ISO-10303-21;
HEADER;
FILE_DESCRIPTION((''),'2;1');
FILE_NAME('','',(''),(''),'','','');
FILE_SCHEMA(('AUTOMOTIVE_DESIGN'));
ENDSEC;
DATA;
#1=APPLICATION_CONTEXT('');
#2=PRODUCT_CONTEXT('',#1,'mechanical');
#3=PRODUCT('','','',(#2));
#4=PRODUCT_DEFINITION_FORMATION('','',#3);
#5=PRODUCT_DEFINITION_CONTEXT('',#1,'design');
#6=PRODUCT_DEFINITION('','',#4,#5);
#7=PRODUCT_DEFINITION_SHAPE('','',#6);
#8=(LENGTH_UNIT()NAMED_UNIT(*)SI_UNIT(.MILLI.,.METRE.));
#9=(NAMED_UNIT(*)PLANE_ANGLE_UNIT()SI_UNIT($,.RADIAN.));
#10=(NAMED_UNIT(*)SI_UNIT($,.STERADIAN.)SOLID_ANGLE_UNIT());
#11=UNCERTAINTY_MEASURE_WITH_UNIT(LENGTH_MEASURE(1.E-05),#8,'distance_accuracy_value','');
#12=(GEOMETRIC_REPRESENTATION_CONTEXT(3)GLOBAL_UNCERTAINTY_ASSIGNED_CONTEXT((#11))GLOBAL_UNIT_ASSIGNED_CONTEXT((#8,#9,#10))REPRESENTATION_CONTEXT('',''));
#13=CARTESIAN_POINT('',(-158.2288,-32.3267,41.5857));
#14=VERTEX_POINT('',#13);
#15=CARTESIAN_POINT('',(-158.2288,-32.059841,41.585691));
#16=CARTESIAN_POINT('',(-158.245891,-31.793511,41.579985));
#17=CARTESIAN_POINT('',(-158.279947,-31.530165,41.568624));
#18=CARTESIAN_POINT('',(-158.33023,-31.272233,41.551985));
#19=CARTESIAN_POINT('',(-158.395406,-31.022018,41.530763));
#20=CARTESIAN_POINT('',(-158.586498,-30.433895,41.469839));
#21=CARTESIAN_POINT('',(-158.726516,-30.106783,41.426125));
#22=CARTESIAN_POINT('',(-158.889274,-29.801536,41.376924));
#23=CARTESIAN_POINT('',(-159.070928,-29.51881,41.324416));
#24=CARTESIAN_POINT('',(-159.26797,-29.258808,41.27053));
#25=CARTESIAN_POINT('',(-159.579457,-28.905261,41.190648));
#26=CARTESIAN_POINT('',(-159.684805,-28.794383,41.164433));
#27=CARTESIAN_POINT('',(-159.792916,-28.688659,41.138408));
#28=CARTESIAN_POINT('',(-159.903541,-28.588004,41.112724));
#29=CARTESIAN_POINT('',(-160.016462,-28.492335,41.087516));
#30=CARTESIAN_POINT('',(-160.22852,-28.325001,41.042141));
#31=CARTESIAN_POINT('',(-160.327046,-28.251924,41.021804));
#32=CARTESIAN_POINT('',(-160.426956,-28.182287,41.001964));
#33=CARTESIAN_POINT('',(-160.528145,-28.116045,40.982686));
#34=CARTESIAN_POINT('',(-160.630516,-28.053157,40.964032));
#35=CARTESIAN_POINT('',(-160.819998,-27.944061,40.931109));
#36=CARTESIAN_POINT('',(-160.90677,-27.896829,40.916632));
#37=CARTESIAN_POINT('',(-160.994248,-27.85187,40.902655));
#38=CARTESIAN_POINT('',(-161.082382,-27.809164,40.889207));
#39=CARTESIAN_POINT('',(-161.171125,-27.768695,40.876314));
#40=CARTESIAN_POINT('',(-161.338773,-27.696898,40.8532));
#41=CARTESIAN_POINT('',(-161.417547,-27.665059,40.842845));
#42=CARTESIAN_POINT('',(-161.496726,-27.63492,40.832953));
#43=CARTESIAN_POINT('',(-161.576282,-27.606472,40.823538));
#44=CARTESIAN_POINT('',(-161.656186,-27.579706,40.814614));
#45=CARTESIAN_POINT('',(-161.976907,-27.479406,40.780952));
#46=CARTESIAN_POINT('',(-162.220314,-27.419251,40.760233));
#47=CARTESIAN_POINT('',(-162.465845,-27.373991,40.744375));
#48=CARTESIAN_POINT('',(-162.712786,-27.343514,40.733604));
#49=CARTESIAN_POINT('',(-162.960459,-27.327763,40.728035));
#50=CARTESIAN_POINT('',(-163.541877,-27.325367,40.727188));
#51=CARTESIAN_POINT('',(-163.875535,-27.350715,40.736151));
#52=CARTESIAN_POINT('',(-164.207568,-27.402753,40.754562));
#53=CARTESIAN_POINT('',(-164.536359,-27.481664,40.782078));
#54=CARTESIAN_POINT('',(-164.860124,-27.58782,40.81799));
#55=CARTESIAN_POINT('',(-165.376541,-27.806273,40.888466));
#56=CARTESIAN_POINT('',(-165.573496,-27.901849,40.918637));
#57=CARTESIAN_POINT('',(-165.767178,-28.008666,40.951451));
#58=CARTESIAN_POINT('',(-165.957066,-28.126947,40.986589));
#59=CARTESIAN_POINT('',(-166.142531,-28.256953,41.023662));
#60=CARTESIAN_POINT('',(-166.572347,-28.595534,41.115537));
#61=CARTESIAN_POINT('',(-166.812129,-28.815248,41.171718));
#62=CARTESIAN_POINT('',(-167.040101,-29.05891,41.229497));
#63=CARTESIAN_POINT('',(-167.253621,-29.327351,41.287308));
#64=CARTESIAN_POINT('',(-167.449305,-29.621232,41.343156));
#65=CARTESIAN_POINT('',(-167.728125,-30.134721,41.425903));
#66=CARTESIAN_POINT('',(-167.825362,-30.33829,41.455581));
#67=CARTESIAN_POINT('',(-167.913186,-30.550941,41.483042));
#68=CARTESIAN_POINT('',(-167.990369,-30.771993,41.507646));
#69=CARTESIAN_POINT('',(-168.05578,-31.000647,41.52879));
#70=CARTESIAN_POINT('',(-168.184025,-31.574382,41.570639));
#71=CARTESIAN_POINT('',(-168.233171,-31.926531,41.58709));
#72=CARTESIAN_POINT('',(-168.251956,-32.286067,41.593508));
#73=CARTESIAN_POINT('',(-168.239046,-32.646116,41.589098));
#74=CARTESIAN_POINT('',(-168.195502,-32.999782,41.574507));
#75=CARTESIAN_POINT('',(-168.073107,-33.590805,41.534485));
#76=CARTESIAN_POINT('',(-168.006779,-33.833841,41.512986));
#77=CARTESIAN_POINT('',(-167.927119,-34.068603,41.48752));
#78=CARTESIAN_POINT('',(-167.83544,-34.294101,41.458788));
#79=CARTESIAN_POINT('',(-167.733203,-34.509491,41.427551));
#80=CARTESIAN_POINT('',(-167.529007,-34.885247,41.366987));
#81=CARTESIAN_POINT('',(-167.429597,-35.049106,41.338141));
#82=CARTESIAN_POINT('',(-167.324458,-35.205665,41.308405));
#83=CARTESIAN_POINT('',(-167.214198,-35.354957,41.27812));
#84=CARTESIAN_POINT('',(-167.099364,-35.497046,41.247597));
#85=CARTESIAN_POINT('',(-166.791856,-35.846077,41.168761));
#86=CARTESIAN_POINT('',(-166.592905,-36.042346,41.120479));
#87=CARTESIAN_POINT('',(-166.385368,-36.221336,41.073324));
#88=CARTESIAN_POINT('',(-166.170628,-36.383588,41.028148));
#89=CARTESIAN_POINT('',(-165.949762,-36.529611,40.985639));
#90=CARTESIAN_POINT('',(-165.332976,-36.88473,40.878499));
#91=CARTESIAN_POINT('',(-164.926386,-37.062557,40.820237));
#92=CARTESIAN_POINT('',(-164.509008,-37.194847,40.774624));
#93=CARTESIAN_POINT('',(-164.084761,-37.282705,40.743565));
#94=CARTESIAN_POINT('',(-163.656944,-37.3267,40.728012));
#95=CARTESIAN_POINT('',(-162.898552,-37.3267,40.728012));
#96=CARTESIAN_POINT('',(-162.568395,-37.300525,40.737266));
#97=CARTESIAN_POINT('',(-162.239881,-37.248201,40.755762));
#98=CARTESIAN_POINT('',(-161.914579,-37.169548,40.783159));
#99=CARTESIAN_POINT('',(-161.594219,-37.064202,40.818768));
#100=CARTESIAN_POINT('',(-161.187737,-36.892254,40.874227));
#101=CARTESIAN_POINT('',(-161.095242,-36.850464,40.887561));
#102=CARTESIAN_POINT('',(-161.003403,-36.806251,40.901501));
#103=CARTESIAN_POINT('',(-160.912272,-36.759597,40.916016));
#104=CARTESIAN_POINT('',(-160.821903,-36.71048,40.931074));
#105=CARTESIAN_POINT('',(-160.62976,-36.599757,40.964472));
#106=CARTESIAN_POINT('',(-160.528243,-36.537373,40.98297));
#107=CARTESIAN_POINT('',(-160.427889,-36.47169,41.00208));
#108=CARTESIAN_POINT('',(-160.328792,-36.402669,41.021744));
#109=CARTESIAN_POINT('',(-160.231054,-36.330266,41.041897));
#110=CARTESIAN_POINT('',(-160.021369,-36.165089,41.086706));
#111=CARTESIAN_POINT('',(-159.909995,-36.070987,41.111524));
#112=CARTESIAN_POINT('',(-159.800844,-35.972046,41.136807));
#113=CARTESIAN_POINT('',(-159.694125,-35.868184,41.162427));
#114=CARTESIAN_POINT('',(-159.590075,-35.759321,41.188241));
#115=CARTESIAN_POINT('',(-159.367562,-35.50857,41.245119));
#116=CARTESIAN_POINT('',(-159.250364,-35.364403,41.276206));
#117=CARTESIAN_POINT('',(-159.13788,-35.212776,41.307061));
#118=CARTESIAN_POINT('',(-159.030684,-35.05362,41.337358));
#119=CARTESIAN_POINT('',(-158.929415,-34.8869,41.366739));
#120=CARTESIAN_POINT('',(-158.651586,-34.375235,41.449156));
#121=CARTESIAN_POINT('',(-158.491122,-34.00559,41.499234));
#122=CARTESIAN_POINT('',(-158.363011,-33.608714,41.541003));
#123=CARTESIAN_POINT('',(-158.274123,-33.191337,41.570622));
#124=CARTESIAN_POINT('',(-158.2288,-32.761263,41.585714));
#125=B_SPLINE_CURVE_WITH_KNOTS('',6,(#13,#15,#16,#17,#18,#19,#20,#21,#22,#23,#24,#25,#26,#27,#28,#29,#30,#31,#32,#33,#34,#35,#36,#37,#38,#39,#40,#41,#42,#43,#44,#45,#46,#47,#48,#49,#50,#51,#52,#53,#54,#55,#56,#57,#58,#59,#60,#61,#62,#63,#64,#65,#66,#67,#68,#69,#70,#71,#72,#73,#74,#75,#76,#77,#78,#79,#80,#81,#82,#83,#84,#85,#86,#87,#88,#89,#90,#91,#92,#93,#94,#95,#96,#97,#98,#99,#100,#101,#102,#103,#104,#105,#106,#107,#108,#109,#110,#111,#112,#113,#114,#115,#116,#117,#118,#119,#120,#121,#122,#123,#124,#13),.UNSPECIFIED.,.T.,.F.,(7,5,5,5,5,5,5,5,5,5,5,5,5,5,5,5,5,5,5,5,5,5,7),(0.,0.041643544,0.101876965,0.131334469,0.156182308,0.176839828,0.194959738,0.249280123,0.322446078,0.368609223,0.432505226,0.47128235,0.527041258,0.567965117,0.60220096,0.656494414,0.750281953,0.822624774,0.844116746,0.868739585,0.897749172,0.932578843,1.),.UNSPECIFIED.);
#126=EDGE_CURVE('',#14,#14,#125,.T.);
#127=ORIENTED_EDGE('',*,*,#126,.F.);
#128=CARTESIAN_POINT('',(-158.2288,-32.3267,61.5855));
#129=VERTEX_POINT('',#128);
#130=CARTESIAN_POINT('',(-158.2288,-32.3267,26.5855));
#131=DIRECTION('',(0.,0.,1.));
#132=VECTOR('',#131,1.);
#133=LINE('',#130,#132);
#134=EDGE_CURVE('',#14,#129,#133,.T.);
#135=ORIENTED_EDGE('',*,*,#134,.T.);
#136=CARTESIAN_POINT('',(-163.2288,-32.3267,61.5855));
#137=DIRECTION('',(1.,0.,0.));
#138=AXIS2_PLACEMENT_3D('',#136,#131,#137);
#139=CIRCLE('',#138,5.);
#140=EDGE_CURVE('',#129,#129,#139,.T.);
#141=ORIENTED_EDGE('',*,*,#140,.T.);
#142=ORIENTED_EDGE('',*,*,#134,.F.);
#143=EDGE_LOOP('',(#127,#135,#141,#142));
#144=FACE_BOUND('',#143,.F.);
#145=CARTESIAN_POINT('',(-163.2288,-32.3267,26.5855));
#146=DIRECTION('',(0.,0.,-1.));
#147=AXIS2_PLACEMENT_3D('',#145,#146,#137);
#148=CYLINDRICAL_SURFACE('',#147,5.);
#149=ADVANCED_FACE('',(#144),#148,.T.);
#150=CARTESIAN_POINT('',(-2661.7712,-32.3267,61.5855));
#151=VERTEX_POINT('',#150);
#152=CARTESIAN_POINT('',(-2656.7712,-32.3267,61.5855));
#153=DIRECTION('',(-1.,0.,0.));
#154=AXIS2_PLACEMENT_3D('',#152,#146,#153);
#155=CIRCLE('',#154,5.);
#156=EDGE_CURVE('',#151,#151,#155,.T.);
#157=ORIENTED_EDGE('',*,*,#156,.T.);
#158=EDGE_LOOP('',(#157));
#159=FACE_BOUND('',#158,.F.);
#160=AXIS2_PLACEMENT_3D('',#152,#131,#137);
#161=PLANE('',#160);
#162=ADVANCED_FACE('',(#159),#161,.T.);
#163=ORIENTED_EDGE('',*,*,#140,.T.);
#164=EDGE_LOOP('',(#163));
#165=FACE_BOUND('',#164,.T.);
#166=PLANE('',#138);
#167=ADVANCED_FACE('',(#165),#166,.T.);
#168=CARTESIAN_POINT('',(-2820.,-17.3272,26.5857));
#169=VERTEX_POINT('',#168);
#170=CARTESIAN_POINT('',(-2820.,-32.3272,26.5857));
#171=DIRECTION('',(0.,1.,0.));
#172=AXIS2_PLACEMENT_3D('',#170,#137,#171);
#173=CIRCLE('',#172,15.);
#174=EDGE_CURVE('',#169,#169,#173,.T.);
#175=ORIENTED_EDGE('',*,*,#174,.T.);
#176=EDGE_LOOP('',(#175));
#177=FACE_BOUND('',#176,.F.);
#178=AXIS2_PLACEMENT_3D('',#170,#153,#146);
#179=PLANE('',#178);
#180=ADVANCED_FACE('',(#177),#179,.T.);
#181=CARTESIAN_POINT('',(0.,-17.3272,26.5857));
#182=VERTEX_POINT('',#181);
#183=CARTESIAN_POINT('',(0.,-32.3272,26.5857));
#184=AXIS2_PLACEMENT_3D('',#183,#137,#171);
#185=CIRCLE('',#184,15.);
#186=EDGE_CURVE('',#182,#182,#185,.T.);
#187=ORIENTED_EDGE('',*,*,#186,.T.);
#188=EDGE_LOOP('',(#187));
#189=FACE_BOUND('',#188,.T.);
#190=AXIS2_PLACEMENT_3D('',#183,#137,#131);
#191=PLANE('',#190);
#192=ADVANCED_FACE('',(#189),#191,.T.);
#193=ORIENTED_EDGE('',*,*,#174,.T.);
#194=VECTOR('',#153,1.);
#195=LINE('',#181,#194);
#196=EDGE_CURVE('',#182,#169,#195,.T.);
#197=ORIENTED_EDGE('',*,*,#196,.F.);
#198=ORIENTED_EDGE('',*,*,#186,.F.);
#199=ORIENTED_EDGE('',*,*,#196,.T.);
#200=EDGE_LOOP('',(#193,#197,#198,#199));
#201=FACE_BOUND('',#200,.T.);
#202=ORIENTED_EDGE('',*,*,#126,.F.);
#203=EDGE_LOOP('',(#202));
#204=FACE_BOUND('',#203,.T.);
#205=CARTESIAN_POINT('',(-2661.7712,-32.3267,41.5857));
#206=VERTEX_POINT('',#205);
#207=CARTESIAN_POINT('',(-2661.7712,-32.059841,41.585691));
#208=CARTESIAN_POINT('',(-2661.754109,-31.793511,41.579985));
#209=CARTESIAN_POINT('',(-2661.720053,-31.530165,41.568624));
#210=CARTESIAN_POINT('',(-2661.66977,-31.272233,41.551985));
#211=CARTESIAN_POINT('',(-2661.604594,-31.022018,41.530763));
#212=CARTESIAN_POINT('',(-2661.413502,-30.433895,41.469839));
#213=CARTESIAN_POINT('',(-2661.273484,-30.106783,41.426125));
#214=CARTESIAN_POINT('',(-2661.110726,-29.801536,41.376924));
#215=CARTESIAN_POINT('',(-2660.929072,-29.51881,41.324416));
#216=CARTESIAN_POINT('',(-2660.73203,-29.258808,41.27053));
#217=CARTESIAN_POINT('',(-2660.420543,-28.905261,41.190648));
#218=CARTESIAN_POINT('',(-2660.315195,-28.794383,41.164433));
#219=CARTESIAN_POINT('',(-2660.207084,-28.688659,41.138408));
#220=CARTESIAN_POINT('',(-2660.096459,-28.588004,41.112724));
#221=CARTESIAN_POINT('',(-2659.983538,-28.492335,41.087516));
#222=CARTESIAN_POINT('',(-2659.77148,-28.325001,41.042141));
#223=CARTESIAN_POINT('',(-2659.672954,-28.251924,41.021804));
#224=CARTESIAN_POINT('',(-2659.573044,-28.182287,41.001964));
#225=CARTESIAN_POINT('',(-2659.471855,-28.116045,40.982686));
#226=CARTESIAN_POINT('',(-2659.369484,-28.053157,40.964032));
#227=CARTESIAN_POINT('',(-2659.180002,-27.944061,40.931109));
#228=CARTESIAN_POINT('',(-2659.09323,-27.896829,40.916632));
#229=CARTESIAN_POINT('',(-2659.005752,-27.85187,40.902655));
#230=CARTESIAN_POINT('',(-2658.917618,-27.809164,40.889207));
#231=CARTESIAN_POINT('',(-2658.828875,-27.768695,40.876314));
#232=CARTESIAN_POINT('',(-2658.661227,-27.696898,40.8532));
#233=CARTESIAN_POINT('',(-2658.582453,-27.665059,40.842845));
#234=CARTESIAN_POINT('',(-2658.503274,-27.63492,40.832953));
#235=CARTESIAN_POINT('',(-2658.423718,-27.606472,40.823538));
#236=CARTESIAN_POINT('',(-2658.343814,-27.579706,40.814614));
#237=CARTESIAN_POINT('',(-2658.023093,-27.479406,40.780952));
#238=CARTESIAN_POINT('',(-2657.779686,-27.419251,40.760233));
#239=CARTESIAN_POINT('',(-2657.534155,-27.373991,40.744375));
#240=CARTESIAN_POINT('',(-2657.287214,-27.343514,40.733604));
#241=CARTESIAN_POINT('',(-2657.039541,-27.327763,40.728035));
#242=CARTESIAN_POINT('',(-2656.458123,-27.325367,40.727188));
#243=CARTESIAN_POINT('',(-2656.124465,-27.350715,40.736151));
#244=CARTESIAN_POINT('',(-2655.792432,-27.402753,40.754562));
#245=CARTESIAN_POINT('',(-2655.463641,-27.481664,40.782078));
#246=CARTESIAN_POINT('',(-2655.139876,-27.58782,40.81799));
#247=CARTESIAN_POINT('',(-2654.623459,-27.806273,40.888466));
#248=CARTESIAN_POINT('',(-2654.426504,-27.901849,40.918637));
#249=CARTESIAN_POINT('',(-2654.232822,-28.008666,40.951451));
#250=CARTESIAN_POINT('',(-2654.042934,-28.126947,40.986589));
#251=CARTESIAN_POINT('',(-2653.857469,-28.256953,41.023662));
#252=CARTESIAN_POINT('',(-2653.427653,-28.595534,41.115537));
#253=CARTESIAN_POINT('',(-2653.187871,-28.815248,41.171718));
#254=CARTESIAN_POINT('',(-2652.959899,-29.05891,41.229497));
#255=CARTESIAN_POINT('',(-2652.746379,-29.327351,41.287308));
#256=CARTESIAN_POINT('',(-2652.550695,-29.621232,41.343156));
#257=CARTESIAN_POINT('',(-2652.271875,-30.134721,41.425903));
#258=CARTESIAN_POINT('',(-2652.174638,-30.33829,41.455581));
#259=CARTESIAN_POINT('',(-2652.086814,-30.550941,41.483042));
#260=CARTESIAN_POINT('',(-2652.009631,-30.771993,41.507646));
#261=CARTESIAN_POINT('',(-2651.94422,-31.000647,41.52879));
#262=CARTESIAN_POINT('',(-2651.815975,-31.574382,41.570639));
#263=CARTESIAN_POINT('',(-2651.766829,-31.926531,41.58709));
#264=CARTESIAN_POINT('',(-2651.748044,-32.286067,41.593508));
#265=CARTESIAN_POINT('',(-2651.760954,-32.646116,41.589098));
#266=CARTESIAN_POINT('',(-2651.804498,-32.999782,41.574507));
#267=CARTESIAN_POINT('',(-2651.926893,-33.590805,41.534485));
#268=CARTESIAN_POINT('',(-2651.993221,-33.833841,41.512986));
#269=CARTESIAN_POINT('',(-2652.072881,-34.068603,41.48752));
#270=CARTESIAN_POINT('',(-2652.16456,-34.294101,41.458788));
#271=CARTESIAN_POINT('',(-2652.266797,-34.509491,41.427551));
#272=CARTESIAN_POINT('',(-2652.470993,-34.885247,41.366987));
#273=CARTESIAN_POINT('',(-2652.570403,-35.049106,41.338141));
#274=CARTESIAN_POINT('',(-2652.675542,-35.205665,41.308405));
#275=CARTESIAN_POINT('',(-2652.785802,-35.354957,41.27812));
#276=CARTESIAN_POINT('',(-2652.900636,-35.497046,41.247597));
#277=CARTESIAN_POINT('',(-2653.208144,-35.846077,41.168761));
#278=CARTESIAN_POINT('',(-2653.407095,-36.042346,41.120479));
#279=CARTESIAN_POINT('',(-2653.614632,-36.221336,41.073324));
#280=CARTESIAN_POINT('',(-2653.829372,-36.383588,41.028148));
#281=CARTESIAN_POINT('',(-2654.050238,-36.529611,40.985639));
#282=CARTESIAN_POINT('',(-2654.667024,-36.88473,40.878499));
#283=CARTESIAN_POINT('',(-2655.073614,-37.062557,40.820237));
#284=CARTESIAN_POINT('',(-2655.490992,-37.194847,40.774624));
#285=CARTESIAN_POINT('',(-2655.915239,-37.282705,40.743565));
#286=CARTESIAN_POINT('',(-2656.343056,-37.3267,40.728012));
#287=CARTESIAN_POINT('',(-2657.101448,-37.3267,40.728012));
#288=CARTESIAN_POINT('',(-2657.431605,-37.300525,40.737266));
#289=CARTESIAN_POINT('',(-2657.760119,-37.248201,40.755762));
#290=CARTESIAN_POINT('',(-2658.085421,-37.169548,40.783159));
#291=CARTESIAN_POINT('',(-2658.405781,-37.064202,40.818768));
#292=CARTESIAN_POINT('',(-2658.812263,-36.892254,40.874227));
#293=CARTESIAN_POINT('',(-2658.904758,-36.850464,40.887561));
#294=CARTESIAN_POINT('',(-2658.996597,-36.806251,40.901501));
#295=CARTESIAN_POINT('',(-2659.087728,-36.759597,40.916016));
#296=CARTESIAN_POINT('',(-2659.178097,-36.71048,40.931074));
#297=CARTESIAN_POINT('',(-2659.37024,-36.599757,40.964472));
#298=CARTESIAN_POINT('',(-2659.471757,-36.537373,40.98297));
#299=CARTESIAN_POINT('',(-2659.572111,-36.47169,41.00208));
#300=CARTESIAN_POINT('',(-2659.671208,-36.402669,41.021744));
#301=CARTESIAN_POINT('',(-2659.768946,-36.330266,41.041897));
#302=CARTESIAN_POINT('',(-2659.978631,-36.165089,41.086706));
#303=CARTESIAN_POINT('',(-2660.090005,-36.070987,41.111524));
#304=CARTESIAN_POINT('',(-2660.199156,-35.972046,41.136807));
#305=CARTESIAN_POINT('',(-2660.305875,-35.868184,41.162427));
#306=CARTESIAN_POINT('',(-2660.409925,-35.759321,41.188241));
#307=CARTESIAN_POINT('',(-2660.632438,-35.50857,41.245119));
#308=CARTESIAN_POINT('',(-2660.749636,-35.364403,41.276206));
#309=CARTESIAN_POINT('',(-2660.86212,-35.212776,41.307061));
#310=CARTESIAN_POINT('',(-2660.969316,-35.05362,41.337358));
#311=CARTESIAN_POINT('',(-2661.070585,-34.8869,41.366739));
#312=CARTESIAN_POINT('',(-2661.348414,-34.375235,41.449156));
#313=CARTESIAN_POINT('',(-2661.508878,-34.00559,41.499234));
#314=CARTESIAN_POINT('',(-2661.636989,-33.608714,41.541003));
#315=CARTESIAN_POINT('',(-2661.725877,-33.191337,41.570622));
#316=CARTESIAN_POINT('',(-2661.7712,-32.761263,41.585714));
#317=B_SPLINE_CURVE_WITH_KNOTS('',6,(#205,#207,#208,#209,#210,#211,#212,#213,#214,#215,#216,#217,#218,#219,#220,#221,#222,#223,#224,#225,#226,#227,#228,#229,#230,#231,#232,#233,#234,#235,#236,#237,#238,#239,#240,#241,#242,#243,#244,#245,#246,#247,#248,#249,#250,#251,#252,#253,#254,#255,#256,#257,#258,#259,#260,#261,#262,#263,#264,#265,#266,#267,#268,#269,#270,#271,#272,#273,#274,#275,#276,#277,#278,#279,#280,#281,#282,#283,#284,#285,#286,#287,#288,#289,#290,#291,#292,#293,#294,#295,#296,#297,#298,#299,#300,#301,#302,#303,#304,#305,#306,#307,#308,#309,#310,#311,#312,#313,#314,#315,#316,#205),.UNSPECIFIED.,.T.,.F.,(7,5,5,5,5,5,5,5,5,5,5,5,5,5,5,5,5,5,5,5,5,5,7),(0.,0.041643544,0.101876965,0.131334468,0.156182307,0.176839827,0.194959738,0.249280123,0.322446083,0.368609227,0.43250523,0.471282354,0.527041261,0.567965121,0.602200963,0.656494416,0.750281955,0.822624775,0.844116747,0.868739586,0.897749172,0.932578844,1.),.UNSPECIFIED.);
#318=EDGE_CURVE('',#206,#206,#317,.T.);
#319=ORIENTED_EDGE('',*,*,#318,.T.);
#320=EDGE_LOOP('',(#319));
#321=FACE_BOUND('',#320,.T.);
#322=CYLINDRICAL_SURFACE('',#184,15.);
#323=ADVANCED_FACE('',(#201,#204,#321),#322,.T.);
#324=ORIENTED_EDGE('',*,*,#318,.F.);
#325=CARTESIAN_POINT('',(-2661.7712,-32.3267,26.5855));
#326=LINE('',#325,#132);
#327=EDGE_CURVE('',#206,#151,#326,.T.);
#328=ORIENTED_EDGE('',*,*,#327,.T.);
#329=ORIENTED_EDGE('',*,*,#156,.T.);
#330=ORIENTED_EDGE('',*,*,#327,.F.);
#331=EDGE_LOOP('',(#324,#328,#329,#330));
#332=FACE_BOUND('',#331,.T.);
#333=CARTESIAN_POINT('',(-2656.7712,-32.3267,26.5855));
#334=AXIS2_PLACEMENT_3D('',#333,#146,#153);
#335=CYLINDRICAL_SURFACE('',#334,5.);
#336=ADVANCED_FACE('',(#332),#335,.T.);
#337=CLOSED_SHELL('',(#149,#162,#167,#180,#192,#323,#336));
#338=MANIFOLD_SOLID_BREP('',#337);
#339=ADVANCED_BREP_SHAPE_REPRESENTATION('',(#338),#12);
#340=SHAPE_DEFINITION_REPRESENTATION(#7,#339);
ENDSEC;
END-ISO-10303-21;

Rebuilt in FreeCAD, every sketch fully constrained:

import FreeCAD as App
import Part
import Sketcher
from FreeCAD import Vector
Q = App.Units.Quantity

doc = App.newDocument("Part")
params = doc.addObject("Spreadsheet::Sheet", "Params")
for row, (alias, value) in enumerate([
    ("sketch1_diameter", "30 mm"),
    ("pad1_length", "1410 mm"),
    ("sketch2_diameter", "10 mm"),
    ("pad2_length", "35 mm"),
], start=1):
    params.set(f"A{row}", alias)
    params.set(f"B{row}", "=" + value)
    params.setAlias(f"B{row}", alias)

body = doc.addObject("PartDesign::Body", "Body")

# Sketch on YZ plane
sketch1 = body.newObject("Sketcher::SketchObject", "Sketch")
sketch1.AttachmentSupport = (doc.getObject("YZ_Plane"), [""])
sketch1.MapMode = "FlatFace"
sketch1.addGeometry(Part.Circle(Vector(-32.3272, 26.5857, 0), Vector(0, 0, 1), 15), False)
sketch1.addConstraint(Sketcher.Constraint("Diameter", 0, Q("30 mm")))
sketch1.addConstraint(Sketcher.Constraint("DistanceX", 0, 3, -1, 1, Q("32.3272 mm")))
sketch1.addConstraint(Sketcher.Constraint("DistanceY", -1, 1, 0, 3, Q("26.5857 mm")))
sketch1.setExpression("Constraints[0]", "Params.sketch1_diameter")
pad1 = body.newObject("PartDesign::Pad", "Pad")
pad1.Profile = sketch1
pad1.setExpression("Length", "Params.pad1_length")
pad1.Reversed = True

# Sketch on XY plane
sketch2 = body.newObject("Sketcher::SketchObject", "Sketch001")
sketch2.AttachmentSupport = (doc.getObject("XY_Plane"), [""])
sketch2.MapMode = "FlatFace"
sketch2.AttachmentOffset = App.Placement(Vector(0, 0, 26.5855), App.Rotation())
sketch2.addGeometry(Part.Circle(Vector(-163.2288, -32.3267, 0), Vector(0, 0, 1), 5), False)
sketch2.addConstraint(Sketcher.Constraint("Diameter", 0, Q("10 mm")))
sketch2.addConstraint(Sketcher.Constraint("DistanceX", 0, 3, -1, 1, Q("163.2288 mm")))
sketch2.addConstraint(Sketcher.Constraint("DistanceY", 0, 3, -1, 1, Q("32.3267 mm")))
sketch2.setExpression("Constraints[0]", "Params.sketch2_diameter")
pad2 = body.newObject("PartDesign::Pad", "Pad001")
pad2.Profile = sketch2
pad2.setExpression("Length", "Params.pad2_length")
doc.recompute()

datumplane = body.newObject("PartDesign::Plane", "DatumPlane")
datumplane.AttachmentSupport = (doc.getObject("YZ_Plane"), [""])
datumplane.MapMode = "FlatFace"
datumplane.AttachmentOffset = App.Placement(Vector(0, 0, -1410), App.Rotation())
mirrored = body.newObject("PartDesign::Mirrored", "Mirrored")
mirrored.Originals = [pad1, pad2]
mirrored.MirrorPlane = (datumplane, [""])
body.Tip = mirrored

doc.recompute()
